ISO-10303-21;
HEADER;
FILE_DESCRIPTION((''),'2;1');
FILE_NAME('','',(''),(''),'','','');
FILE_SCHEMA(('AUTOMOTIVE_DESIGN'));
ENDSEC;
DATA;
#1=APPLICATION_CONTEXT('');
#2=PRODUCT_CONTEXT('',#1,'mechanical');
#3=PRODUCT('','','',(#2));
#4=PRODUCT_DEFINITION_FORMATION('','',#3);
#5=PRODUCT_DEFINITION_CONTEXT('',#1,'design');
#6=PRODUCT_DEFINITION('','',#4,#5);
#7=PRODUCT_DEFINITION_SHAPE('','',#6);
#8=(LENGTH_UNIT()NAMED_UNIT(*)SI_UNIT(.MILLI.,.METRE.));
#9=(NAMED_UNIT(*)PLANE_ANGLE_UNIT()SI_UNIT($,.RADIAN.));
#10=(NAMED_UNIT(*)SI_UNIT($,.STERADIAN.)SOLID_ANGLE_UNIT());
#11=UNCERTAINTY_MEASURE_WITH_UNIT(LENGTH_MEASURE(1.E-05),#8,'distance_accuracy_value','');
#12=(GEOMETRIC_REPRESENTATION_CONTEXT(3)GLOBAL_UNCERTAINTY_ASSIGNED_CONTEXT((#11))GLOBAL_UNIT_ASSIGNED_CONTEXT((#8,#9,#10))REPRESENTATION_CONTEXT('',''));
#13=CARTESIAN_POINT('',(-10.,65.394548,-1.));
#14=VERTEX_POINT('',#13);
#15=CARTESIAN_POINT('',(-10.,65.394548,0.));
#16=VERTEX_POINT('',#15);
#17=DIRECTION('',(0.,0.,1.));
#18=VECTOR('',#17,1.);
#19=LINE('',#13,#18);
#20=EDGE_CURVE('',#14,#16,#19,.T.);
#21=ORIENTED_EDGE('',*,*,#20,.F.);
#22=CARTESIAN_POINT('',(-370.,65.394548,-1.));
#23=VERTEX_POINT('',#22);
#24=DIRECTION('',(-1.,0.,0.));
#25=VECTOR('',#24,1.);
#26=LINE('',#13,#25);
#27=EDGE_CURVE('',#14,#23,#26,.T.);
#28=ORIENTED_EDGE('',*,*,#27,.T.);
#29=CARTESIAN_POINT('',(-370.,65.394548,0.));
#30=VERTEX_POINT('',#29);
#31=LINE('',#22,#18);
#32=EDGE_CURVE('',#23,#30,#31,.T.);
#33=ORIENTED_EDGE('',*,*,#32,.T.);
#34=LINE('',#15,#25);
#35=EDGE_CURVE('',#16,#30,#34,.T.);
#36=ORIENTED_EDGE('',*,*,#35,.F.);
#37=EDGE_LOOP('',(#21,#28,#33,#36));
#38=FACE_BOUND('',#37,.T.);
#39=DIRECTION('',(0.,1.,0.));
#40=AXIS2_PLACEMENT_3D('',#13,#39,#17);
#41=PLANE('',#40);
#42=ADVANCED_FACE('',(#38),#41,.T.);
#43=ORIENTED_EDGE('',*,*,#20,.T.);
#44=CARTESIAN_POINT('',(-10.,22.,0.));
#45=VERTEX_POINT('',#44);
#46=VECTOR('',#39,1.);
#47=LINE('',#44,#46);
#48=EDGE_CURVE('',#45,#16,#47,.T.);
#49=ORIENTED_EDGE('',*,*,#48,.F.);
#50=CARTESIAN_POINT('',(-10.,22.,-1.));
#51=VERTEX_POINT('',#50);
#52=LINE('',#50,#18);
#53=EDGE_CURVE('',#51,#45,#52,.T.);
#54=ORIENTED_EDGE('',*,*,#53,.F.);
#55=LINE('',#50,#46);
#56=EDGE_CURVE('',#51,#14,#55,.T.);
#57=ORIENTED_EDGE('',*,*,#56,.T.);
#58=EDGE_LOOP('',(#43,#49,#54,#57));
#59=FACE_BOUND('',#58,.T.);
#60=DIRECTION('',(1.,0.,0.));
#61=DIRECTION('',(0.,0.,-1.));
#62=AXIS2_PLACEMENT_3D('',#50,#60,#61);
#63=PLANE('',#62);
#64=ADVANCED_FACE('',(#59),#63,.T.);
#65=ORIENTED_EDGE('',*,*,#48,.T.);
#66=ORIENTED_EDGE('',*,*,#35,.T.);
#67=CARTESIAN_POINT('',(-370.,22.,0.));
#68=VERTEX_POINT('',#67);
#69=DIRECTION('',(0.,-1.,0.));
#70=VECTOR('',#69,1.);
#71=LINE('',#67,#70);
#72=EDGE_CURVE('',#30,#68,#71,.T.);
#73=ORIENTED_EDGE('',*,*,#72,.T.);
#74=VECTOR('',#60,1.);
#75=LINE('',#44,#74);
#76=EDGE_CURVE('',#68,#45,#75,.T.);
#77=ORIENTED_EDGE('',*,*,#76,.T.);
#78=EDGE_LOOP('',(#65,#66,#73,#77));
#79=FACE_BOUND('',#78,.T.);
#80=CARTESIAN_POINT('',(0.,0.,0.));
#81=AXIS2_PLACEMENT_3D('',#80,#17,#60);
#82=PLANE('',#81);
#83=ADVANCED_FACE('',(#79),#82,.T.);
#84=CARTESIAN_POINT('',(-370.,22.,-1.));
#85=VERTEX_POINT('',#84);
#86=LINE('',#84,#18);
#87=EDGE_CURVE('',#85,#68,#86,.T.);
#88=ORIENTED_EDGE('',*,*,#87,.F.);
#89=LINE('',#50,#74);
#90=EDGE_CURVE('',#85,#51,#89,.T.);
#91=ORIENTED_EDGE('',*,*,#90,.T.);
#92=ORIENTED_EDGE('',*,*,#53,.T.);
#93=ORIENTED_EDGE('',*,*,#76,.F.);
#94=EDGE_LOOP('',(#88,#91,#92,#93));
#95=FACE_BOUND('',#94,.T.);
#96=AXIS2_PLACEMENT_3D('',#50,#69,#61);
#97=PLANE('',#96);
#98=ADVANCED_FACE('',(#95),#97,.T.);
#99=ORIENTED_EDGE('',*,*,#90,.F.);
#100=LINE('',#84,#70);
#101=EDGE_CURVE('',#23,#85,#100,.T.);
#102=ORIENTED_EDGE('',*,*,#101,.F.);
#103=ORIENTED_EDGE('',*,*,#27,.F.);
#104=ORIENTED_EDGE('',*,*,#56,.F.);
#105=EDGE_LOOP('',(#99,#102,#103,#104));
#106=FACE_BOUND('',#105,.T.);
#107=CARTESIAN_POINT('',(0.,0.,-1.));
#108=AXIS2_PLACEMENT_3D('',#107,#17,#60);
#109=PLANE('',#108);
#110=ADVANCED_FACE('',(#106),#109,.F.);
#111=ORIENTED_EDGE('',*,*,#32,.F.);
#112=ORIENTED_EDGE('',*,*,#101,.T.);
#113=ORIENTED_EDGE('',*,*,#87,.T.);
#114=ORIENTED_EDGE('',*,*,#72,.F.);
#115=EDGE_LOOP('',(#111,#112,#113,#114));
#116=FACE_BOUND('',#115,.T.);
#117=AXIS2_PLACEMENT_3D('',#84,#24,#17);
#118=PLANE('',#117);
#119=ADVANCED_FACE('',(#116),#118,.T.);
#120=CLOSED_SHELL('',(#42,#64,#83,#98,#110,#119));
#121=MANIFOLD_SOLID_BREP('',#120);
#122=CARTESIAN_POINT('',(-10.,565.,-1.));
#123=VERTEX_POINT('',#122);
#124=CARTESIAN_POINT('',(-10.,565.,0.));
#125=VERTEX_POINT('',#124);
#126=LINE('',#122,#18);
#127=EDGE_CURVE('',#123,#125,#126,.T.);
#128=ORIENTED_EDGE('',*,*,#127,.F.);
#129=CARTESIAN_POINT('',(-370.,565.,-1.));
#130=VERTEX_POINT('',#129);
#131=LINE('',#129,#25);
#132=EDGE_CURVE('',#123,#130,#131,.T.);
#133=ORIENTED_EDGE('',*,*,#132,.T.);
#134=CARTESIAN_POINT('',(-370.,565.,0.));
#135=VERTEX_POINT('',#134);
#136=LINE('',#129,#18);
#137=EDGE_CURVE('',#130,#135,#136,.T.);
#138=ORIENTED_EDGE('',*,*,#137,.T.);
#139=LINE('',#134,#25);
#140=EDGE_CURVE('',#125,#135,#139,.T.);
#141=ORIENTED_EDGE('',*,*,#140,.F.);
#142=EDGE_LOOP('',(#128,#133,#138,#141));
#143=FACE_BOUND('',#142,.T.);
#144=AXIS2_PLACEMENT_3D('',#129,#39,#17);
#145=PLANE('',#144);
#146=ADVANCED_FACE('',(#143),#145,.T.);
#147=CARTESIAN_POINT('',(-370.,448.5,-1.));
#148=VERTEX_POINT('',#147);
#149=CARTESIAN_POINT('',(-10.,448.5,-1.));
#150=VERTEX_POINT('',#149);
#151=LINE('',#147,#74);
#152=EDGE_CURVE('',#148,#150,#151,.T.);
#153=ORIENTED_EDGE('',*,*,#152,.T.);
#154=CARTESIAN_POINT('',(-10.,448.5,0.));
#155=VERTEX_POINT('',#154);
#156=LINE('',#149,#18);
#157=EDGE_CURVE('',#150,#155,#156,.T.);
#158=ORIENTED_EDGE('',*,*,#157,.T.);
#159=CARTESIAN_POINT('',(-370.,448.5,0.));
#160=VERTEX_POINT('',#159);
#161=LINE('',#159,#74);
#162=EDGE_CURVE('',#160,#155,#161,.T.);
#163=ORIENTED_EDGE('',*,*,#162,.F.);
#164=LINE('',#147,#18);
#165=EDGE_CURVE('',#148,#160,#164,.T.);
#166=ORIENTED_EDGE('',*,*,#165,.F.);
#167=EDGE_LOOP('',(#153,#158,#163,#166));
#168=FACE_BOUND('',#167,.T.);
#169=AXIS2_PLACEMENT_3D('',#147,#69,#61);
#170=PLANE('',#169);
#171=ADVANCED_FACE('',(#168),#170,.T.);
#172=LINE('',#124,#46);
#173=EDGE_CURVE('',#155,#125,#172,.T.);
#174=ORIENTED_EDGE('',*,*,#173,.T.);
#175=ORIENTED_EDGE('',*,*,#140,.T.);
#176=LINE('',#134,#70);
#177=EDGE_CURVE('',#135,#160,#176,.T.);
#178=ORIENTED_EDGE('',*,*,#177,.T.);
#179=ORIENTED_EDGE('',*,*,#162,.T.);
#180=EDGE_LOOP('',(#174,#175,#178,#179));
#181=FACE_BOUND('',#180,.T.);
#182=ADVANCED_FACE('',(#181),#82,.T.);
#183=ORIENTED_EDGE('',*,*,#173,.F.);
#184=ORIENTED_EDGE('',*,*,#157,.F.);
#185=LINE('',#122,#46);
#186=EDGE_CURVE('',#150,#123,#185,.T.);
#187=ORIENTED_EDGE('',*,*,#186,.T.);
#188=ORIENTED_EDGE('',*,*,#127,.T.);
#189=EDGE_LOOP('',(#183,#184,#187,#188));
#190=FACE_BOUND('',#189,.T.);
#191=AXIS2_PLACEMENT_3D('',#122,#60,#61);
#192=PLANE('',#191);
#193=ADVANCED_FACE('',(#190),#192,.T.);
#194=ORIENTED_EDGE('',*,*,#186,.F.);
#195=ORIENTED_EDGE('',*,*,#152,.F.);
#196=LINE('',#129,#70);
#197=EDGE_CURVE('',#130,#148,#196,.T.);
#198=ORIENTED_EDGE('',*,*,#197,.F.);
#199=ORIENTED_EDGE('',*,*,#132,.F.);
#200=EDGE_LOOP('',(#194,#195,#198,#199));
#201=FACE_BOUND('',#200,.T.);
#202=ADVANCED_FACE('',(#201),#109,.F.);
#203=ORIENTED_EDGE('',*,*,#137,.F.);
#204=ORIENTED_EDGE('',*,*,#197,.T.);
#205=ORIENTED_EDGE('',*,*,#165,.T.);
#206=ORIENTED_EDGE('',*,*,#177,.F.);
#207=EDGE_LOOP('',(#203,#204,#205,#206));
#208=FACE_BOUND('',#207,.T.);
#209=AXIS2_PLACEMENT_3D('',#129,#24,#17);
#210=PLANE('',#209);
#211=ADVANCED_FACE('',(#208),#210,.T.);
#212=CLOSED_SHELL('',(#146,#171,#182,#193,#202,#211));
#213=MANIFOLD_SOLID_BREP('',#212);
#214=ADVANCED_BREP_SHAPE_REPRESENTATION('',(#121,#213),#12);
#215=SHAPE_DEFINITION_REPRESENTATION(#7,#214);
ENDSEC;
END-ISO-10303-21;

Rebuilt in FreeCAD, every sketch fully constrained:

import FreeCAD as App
import Part
import Sketcher

V = App.Vector


def add_polygon(sketch, points):
    """Adds a closed chain of lines whose ends are joined by coincident constraints."""
    first, n = sketch.GeometryCount, len(points)
    for a, b in zip(points, points[1:] + points[:1]):
        sketch.addGeometry(Part.LineSegment(App.Vector(*a, 0), App.Vector(*b, 0)), False)
    for i in range(n):
        sketch.addConstraint(Sketcher.Constraint("Coincident", first + i, 2, first + (i + 1) % n, 1))

doc = App.newDocument("Part")
params = doc.addObject("Spreadsheet::Sheet", "Params")
for row, (alias, value) in enumerate([
    ("sketch1_width", "360 mm"),
    ("sketch1_height", "116.5 mm"),
    ("pad1_length", "1 mm"),
    ("sketch2_width", "360 mm"),
    ("pad2_length", "1 mm"),
], start=1):
    params.set(f"A{row}", alias)
    params.set(f"B{row}", "=" + value)
    params.setAlias(f"B{row}", alias)

body = doc.addObject("PartDesign::Body", "Body")

# Sketch on XY plane
sketch1 = body.newObject("Sketcher::SketchObject", "Sketch")
sketch1.AttachmentSupport = (doc.getObject("XY_Plane"), [""])
sketch1.MapMode = "FlatFace"
add_polygon(sketch1, [(-370, 565), (-370, 449), (-10, 449), (-10, 565)])  # lines 0-3
sketch1.addConstraint([
    Sketcher.Constraint("Vertical", 0),
    Sketcher.Constraint("Horizontal", 1),
    Sketcher.Constraint("Vertical", 2),
    Sketcher.Constraint("Horizontal", 3),
    Sketcher.Constraint("DistanceX", 1, 1, 1, 2, 360.0),
    Sketcher.Constraint("DistanceY", 0, 2, 0, 1, 116.5),
    Sketcher.Constraint("DistanceX", 0, 2, -1, 1, 370.0),
    Sketcher.Constraint("DistanceY", -1, 1, 2, 2, 565.0),
])
sketch1.setExpression("Constraints[8]", "Params.sketch1_width")
sketch1.setExpression("Constraints[9]", "Params.sketch1_height")
pad1 = body.newObject("PartDesign::Pad", "Pad")
pad1.Profile = sketch1
pad1.setExpression("Length", "Params.pad1_length")
pad1.Reversed = True
body2 = doc.addObject("PartDesign::Body", "Body001")

# Sketch on XY plane
sketch2 = body2.newObject("Sketcher::SketchObject", "Sketch001")
sketch2.AttachmentSupport = (doc.getObject("XY_Plane001"), [""])
sketch2.MapMode = "FlatFace"
add_polygon(sketch2, [(-370, 65), (-370, 22), (-10, 22), (-10, 65)])  # lines 0-3
sketch2.addConstraint([
    Sketcher.Constraint("Vertical", 0),
    Sketcher.Constraint("Horizontal", 1),
    Sketcher.Constraint("Vertical", 2),
    Sketcher.Constraint("Horizontal", 3),
    Sketcher.Constraint("DistanceX", 1, 1, 1, 2, 360.0),
    Sketcher.Constraint("DistanceX", 0, 2, -1, 1, 370.0),
    Sketcher.Constraint("DistanceY", -1, 1, 0, 2, 22.0),
    Sketcher.Constraint("DistanceY", 0, 2, 0, 1, 43.394548),
])
sketch2.setExpression("Constraints[8]", "Params.sketch2_width")
pad2 = body2.newObject("PartDesign::Pad", "Pad001")
pad2.Profile = sketch2
pad2.setExpression("Length", "Params.pad2_length")
pad2.Reversed = True

doc.recompute()
